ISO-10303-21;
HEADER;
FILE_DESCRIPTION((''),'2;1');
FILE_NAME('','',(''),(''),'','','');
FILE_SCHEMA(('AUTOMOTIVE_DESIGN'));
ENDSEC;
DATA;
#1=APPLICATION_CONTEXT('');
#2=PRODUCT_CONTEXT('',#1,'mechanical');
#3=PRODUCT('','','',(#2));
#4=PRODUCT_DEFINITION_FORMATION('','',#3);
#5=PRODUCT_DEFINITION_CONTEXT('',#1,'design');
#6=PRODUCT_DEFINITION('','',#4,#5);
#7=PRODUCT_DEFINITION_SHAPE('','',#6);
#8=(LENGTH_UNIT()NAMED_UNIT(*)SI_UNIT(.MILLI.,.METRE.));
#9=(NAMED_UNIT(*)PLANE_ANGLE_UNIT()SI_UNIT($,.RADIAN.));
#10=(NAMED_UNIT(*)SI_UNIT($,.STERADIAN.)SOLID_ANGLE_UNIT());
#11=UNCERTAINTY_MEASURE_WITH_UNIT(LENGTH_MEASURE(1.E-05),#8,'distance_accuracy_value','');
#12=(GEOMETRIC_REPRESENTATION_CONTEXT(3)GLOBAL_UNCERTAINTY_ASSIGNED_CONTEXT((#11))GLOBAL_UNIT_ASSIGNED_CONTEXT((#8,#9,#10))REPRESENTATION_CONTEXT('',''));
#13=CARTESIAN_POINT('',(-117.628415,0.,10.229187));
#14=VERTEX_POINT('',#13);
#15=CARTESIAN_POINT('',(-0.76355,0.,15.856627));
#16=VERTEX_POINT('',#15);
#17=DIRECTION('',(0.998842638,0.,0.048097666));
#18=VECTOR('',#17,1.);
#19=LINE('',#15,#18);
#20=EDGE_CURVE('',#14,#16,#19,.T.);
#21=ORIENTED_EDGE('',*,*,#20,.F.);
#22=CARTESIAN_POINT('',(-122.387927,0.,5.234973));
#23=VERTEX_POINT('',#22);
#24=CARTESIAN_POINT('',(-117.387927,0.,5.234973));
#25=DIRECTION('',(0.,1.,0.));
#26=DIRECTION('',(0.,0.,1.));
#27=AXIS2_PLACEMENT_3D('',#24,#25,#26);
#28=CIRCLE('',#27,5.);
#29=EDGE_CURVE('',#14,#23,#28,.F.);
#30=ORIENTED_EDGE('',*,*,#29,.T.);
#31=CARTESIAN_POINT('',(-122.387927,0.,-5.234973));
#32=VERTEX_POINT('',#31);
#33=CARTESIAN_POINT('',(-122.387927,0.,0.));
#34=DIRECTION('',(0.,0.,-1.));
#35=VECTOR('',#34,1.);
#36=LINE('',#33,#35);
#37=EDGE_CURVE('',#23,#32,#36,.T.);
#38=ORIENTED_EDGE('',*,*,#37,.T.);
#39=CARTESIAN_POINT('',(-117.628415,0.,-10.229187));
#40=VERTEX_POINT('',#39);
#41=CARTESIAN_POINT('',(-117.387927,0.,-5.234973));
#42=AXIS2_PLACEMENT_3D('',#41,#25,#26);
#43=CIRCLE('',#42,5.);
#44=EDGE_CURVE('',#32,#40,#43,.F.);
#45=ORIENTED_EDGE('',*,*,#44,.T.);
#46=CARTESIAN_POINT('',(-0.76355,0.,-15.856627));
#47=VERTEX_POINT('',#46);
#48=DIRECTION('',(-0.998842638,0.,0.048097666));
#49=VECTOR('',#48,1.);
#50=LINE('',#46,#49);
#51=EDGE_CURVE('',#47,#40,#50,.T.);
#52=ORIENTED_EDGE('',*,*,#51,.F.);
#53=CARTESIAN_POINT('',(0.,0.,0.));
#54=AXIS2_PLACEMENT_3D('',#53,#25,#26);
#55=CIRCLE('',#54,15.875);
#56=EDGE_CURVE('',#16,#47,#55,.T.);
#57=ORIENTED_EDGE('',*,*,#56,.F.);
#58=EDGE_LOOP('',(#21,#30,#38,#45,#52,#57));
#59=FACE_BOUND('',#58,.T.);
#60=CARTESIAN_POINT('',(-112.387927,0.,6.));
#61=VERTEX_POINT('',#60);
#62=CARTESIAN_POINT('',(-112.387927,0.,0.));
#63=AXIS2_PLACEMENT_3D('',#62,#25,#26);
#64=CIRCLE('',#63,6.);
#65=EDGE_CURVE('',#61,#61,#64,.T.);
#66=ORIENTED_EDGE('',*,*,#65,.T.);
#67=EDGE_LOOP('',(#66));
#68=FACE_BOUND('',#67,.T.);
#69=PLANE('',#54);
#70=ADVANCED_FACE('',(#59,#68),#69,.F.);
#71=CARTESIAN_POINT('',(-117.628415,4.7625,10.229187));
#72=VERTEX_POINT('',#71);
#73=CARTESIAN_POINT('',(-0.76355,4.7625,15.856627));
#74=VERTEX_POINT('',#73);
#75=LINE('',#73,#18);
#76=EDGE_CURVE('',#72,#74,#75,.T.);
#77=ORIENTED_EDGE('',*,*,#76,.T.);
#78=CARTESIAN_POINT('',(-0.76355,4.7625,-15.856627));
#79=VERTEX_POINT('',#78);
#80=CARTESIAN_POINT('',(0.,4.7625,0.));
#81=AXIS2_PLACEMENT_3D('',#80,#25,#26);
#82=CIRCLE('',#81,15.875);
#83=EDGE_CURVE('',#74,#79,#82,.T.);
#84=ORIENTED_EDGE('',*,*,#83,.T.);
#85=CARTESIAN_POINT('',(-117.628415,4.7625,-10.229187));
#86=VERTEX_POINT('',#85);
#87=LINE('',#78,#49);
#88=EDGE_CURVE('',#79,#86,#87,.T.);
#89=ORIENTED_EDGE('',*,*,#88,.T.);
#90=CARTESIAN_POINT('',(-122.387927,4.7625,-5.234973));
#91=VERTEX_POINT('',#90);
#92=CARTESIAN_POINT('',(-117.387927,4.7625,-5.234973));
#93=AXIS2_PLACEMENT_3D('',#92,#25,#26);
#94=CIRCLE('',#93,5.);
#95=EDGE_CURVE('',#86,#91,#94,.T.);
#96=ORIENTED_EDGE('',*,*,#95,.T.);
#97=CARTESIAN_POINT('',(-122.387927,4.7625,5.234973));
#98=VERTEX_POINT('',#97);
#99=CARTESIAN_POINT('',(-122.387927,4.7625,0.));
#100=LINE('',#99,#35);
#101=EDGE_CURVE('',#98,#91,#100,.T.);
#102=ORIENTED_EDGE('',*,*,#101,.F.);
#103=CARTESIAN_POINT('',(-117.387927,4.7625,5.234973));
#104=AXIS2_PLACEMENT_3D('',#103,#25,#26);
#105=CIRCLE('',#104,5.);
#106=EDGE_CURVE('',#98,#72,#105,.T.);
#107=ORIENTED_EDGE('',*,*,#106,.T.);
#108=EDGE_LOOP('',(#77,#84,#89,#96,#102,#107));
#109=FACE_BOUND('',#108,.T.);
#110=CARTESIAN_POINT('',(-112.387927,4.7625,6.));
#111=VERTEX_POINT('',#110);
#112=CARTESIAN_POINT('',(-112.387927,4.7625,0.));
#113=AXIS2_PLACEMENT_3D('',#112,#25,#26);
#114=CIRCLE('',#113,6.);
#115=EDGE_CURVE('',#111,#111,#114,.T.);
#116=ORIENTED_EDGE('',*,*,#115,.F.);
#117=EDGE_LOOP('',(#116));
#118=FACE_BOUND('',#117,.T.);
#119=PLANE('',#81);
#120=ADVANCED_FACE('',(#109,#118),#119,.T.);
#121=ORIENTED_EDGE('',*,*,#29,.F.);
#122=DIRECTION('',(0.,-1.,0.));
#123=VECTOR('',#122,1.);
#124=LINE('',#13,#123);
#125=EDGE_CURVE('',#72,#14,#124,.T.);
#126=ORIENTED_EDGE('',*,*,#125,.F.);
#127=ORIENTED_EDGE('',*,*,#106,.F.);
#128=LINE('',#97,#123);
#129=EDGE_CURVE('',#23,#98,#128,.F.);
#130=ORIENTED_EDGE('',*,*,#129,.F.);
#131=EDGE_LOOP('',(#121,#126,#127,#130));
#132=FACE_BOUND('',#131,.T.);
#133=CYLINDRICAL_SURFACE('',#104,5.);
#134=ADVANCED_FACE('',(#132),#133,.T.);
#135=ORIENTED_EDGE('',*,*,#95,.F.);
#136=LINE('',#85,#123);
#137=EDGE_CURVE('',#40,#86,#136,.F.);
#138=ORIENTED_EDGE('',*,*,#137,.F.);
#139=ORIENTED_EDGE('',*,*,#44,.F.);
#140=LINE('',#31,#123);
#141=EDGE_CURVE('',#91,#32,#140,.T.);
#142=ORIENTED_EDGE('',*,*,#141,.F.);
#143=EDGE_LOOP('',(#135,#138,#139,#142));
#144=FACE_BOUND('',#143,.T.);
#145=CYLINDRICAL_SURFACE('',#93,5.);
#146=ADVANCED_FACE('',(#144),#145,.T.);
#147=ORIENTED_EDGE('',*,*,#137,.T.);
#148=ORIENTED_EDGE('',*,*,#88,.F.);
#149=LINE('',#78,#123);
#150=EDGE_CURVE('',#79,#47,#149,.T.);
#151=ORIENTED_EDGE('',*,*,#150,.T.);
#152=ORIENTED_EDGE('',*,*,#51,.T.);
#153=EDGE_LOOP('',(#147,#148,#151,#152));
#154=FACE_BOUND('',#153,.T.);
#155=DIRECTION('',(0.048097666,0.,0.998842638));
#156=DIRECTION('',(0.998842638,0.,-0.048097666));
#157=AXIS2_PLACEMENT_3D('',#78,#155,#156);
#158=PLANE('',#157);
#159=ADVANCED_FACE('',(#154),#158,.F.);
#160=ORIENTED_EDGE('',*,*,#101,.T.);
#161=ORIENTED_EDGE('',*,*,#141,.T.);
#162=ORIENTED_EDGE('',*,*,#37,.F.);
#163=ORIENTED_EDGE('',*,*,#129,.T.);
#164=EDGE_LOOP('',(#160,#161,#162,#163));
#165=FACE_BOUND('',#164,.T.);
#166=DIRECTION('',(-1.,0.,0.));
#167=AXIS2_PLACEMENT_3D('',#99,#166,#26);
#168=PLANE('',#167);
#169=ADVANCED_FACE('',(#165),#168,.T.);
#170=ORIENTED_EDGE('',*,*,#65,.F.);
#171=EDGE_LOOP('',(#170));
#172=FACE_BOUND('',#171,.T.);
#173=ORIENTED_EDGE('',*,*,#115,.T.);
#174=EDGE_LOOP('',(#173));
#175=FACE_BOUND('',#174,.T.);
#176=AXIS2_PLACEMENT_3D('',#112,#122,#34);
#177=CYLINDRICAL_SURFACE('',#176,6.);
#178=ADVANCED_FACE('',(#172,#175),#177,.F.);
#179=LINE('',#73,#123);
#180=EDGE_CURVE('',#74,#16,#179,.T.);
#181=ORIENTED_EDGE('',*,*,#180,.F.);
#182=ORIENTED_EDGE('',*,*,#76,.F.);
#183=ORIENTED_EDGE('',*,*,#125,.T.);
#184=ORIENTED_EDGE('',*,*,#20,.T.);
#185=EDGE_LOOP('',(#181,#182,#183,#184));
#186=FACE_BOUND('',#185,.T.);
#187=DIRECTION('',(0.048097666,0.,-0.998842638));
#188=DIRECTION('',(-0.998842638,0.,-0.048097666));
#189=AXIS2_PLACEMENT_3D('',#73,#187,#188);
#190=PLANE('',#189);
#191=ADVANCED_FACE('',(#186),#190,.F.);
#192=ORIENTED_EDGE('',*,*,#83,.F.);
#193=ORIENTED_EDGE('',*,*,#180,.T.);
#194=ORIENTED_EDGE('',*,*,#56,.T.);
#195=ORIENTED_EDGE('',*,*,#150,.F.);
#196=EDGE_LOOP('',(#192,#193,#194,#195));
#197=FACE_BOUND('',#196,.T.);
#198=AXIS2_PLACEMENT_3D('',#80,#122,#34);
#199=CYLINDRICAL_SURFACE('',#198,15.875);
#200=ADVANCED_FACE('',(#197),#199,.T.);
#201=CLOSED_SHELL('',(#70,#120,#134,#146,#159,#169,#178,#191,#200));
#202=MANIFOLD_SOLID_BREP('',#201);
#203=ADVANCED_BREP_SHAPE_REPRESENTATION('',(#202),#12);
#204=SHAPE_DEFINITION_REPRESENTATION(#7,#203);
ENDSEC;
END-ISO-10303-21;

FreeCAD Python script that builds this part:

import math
import FreeCAD as App
import Part
import Sketcher


def edges_at(feature, points):
    """Names of the edges that pass closest to the given points."""
    edges = feature.Shape.Edges
    near = lambda p: min(range(len(edges)), key=lambda i: edges[i].distToShape(Part.Vertex(*p))[0])
    return sorted({f"Edge{near(p) + 1}" for p in points})

doc = App.newDocument("Part")
body = doc.addObject("PartDesign::Body", "Body")

# Sketch on XZ plane
sketch1 = body.newObject("Sketcher::SketchObject", "Sketch")
sketch1.AttachmentSupport = (doc.getObject("XZ_Plane"), [""])
sketch1.MapMode = "FlatFace"
sketch1.addGeometry(Part.LineSegment(App.Vector(-122.387927, 10, 0), App.Vector(-0.763551, 15.856627, 0)), False)
sketch1.addGeometry(Part.ArcOfCircle(Part.Circle(App.Vector(0, 0, 0), App.Vector(0, 0, 1), 15.875), math.radians(-92.756857), math.radians(92.756858)), False)
sketch1.addGeometry(Part.LineSegment(App.Vector(-0.76355, -15.856627, 0), App.Vector(-122.387927, -10, 0)), False)
sketch1.addGeometry(Part.LineSegment(App.Vector(-122.387927, -10, 0), App.Vector(-122.387927, 10, 0)), False)
sketch1.addGeometry(Part.Circle(App.Vector(-112.387927, 0, 0), App.Vector(0, 0, 1), 6), False)
sketch1.addConstraint(Sketcher.Constraint("Coincident", 0, 2, 1, 2))
sketch1.addConstraint(Sketcher.Constraint("Coincident", 1, 1, 2, 1))
sketch1.addConstraint(Sketcher.Constraint("Coincident", 2, 2, 3, 1))
sketch1.addConstraint(Sketcher.Constraint("Coincident", 3, 2, 0, 1))
sketch1.addConstraint(Sketcher.Constraint("Vertical", 3))
sketch1.addConstraint(Sketcher.Constraint("Coincident", 1, 3, -1, 1))
sketch1.addConstraint(Sketcher.Constraint("PointOnObject", 4, 3, -1))
sketch1.addConstraint(Sketcher.Constraint("Diameter", 4, 12.0))
sketch1.addConstraint(Sketcher.Constraint("DistanceY", 3, 1, 3, 2, 20.0))
sketch1.addConstraint(Sketcher.Constraint("DistanceY", 2, 2, -1, 1, 10.0))
sketch1.addConstraint(Sketcher.Constraint("Radius", 1, 15.875))
sketch1.addConstraint(Sketcher.Constraint("DistanceX", 2, 2, 4, 3, 10.0))
sketch1.addConstraint(Sketcher.Constraint("DistanceX", 0, 2, -1, 1, 0.763551))
sketch1.addConstraint(Sketcher.Constraint("DistanceX", 1, 1, -1, 1, 0.76355))
sketch1.addConstraint(Sketcher.Constraint("Distance", 0, 121.765303))
pad1 = body.newObject("PartDesign::Pad", "Pad")
pad1.Profile = sketch1
pad1.Length = 4.7625
pad1.Reversed = True
doc.recompute()

fillet = body.newObject("PartDesign::Fillet", "Fillet")
fillet.Base = (pad1, edges_at(pad1, [(-122.388, 2.381, 10), (-122.388, 2.381, -10)]))
fillet.Radius = 5

doc.recompute()
